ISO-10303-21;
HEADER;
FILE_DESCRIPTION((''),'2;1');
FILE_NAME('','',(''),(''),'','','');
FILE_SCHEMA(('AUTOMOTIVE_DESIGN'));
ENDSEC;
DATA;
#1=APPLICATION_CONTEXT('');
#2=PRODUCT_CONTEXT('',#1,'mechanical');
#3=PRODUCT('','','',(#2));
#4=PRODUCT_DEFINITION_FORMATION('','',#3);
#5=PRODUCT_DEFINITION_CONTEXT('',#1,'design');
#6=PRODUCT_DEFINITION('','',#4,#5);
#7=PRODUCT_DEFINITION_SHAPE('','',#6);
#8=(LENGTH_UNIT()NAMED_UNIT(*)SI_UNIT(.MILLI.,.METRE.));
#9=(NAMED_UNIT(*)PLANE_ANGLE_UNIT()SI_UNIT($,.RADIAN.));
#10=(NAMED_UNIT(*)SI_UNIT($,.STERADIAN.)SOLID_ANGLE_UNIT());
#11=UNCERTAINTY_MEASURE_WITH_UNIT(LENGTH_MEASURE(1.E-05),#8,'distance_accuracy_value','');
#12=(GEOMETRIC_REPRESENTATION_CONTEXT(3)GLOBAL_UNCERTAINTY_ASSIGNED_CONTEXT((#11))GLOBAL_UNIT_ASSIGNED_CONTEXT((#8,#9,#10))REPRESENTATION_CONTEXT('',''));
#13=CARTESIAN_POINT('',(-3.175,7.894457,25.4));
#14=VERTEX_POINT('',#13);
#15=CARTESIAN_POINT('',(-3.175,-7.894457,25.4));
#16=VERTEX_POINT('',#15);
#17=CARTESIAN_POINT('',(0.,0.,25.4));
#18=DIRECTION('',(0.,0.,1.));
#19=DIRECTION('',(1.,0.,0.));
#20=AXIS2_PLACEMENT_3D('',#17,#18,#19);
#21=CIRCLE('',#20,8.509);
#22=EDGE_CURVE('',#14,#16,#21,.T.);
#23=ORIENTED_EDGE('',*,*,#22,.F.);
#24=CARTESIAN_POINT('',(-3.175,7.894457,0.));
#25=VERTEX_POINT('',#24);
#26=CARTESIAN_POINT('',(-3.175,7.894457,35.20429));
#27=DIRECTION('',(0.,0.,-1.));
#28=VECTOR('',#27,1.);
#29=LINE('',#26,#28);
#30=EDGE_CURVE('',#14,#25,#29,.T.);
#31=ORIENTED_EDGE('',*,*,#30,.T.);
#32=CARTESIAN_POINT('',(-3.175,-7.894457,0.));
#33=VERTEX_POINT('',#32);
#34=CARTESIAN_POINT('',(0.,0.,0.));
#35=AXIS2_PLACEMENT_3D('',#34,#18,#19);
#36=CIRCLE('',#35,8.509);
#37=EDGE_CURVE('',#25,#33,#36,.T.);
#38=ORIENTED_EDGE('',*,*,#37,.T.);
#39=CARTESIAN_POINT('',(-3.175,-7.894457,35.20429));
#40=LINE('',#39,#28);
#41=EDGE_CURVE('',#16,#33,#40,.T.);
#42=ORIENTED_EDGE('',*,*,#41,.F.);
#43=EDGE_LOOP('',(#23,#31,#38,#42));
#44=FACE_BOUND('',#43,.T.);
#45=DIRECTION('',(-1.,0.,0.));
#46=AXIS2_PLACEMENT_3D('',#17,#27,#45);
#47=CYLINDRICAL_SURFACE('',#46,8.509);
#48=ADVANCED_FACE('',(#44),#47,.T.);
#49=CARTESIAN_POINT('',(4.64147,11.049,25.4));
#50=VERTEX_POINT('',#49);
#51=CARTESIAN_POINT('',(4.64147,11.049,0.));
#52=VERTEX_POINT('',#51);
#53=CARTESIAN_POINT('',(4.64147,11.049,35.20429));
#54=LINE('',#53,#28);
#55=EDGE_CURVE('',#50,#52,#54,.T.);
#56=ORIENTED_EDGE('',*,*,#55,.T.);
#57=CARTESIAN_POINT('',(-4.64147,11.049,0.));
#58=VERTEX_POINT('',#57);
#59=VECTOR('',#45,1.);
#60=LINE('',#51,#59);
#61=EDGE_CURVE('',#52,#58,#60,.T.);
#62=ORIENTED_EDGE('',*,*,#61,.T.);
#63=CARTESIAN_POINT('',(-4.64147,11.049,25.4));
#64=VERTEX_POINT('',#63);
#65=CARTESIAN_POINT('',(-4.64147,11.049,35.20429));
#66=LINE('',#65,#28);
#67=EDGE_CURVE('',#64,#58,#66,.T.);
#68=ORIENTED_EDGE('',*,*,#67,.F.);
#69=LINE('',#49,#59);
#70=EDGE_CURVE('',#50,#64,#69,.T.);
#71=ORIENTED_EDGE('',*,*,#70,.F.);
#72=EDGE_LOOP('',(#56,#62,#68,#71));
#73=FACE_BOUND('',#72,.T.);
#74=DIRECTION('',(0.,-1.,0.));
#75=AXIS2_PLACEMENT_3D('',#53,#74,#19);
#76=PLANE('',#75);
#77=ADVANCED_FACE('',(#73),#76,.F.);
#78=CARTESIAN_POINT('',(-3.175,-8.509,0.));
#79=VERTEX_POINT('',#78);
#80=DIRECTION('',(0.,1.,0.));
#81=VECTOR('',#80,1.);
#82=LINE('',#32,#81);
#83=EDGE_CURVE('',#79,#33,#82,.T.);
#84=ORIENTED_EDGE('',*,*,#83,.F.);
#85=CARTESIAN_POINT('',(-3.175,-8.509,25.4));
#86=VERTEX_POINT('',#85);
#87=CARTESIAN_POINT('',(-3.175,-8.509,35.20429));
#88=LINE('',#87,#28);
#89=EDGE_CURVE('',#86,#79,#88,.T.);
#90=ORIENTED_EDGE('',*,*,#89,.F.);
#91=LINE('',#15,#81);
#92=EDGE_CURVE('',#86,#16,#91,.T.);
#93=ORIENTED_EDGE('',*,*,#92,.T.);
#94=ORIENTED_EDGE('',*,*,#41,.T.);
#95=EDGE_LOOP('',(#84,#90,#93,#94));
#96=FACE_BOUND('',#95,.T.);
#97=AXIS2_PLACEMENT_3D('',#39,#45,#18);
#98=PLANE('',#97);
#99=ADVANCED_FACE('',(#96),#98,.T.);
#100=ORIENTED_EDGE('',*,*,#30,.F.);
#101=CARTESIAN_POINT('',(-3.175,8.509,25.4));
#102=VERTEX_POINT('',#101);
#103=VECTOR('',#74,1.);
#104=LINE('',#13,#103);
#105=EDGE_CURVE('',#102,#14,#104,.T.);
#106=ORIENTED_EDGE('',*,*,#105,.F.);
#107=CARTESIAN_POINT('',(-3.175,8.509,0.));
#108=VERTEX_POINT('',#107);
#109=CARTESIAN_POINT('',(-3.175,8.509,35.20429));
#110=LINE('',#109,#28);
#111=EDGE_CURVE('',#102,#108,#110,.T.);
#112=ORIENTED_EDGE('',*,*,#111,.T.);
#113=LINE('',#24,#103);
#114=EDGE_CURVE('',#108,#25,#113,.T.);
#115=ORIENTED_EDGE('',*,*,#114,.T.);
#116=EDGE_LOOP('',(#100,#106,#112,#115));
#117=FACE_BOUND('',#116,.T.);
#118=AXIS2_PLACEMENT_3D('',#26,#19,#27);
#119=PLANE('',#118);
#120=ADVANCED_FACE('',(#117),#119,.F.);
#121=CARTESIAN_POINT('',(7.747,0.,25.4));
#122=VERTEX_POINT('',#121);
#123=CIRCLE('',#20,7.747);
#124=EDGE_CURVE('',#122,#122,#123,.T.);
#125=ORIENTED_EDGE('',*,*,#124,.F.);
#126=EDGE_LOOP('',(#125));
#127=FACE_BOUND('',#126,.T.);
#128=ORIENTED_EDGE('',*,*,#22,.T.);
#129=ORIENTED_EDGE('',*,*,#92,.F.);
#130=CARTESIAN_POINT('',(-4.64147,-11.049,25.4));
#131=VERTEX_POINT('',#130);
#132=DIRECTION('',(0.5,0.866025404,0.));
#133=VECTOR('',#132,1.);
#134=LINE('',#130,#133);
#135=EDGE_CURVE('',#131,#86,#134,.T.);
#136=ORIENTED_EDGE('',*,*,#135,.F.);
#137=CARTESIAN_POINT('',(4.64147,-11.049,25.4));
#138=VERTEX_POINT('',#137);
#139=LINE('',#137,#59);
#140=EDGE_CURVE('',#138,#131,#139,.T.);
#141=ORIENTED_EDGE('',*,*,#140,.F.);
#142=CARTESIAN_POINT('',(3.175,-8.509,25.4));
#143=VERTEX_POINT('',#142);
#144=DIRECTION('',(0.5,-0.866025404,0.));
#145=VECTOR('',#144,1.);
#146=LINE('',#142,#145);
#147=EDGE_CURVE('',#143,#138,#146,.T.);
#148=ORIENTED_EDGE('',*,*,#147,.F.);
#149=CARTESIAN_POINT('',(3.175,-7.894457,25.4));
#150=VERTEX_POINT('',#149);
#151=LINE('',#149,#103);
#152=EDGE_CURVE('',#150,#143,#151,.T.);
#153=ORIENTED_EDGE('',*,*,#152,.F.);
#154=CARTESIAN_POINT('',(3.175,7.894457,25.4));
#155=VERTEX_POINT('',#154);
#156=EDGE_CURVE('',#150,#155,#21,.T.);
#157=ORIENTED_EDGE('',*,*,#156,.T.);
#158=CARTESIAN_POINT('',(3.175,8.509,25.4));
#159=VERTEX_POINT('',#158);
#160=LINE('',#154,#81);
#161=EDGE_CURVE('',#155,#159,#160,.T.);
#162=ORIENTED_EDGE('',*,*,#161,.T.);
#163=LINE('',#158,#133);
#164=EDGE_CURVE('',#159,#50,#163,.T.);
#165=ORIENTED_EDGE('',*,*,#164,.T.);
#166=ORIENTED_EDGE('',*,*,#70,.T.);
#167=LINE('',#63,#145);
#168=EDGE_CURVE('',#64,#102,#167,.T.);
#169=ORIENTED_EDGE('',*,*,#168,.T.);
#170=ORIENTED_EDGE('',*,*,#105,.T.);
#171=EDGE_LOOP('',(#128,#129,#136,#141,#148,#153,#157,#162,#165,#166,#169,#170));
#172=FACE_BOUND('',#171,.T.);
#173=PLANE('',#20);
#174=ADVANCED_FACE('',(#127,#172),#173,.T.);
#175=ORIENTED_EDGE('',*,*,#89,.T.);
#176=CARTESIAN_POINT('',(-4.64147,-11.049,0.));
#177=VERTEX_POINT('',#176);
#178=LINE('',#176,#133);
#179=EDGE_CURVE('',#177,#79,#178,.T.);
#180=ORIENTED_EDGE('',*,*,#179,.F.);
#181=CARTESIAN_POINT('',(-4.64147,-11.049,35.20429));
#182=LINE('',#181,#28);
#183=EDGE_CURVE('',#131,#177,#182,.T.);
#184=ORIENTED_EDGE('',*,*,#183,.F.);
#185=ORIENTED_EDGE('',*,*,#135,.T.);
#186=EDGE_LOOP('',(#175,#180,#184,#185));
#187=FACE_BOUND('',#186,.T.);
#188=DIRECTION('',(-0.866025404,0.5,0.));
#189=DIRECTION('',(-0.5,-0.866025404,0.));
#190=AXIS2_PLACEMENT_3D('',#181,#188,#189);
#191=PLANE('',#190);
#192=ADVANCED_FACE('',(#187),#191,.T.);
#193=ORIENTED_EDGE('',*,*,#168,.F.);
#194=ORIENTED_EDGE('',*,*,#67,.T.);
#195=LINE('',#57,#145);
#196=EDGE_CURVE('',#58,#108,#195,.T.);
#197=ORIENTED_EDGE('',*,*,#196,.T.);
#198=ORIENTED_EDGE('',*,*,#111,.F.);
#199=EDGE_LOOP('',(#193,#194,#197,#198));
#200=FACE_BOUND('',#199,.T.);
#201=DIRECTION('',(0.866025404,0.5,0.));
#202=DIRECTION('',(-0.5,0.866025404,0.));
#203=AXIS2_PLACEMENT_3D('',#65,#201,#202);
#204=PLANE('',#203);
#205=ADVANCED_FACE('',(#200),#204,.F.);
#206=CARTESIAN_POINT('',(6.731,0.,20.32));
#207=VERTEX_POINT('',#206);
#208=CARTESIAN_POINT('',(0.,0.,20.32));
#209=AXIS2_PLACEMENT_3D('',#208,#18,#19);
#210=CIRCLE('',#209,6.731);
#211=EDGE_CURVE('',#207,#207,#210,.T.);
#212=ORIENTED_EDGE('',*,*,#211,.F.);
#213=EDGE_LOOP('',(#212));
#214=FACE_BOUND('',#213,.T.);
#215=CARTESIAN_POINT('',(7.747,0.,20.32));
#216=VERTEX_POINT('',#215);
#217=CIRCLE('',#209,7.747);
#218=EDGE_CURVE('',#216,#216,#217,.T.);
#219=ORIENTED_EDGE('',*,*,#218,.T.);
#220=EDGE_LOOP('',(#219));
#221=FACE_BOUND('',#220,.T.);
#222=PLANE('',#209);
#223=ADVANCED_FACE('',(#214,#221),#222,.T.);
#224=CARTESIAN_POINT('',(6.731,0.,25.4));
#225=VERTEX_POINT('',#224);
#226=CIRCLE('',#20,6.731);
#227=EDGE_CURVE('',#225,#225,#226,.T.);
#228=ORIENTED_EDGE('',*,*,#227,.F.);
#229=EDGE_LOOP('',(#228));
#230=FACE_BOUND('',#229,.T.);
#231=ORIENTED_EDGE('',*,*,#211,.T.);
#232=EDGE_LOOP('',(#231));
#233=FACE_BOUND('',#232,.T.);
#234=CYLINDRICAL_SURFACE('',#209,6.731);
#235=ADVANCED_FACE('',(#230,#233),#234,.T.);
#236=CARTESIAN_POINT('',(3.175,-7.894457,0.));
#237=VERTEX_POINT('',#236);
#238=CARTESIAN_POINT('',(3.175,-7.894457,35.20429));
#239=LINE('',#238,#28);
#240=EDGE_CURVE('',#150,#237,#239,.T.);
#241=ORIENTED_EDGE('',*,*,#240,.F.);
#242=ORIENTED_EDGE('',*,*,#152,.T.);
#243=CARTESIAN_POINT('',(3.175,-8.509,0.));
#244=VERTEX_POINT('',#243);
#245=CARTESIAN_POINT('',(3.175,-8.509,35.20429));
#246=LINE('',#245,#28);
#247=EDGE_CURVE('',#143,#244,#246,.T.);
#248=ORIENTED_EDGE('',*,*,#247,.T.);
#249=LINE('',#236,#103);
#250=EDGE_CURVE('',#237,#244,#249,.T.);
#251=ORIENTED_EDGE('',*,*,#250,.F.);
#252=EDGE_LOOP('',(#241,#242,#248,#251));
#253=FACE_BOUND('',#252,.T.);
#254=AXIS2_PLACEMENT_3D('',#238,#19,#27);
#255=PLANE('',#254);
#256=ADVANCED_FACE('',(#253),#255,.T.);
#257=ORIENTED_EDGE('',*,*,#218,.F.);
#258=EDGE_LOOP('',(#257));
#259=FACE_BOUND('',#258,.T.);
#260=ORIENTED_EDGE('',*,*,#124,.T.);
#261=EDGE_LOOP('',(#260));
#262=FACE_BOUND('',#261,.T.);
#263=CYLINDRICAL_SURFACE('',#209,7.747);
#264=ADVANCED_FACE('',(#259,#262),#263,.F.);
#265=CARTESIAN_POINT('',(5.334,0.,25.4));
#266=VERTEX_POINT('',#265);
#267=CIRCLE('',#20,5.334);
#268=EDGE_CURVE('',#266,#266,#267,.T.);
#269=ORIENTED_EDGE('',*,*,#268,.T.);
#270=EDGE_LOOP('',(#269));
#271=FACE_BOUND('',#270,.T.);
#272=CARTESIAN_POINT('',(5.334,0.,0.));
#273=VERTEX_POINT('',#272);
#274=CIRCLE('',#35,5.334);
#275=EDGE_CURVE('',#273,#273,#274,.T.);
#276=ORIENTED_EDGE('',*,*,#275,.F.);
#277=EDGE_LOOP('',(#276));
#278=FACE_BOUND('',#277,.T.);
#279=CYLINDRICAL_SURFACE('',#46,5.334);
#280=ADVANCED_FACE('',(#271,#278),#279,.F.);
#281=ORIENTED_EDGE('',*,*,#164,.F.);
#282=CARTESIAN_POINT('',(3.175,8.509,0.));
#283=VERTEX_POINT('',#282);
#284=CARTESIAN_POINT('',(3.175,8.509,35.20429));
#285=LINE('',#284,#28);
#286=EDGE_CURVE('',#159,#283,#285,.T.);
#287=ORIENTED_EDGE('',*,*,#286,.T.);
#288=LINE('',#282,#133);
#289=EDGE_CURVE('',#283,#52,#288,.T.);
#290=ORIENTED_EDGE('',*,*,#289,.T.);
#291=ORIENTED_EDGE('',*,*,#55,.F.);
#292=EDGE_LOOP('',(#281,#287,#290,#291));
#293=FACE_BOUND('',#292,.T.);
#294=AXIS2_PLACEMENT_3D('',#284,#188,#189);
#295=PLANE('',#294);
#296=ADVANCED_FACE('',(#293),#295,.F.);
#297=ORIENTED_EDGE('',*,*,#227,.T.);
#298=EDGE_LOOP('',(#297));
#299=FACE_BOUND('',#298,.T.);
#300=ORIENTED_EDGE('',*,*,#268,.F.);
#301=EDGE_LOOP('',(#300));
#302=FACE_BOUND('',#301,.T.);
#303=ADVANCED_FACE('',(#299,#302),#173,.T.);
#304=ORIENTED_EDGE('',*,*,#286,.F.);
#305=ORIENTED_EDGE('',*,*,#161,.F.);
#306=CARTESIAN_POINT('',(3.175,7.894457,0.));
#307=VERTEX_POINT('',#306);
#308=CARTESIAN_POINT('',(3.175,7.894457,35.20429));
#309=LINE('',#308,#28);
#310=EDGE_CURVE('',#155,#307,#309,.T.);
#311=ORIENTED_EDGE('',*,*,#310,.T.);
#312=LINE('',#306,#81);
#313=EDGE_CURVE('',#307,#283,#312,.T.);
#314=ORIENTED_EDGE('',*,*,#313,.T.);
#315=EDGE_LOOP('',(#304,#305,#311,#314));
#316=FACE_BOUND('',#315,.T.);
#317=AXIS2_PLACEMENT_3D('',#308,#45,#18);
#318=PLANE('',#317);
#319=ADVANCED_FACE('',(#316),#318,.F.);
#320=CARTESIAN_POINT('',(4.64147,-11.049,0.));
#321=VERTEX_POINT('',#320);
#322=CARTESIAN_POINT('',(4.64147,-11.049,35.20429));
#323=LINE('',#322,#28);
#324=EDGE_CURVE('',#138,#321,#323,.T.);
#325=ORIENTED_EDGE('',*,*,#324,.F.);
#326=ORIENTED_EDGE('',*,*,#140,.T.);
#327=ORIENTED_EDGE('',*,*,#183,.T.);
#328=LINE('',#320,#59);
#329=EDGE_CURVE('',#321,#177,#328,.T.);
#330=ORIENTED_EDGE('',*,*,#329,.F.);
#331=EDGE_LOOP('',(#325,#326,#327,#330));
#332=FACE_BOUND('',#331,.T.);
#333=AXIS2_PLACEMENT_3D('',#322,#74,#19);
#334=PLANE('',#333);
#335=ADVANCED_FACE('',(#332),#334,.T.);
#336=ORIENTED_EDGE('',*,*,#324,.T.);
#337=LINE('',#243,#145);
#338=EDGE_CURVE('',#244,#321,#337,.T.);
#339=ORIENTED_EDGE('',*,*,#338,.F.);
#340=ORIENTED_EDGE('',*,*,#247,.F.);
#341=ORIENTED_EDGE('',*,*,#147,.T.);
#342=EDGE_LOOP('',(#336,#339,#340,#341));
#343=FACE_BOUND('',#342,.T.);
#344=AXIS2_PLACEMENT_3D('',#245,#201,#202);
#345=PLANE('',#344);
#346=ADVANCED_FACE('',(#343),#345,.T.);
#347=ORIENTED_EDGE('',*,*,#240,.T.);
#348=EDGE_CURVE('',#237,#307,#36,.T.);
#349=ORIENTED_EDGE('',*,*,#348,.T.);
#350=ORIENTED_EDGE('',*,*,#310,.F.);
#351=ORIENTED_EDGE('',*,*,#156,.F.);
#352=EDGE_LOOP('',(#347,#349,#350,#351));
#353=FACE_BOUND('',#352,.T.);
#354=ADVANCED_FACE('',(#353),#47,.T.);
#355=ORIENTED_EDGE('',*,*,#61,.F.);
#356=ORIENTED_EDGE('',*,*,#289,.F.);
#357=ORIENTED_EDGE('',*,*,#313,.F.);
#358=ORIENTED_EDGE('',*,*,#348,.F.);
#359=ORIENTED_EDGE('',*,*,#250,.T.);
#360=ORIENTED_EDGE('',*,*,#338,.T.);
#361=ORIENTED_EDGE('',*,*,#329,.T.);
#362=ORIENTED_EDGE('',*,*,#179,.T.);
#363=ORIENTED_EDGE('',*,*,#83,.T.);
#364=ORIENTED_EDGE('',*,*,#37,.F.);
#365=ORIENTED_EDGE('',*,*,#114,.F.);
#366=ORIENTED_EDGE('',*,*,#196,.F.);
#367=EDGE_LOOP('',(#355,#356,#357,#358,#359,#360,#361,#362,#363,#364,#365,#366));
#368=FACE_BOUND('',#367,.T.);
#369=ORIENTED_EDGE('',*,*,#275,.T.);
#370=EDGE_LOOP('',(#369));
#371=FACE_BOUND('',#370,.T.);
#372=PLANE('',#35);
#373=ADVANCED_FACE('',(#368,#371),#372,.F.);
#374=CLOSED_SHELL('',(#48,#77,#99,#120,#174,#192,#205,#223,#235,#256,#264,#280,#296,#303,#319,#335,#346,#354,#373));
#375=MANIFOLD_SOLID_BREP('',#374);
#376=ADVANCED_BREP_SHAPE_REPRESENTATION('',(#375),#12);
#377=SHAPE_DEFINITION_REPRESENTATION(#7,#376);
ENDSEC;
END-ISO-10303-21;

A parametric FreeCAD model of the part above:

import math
import FreeCAD as App
import Part
import Sketcher
Q = App.Units.Quantity

doc = App.newDocument("Part")
body = doc.addObject("PartDesign::Body", "Body")

# Sketch on XY plane
sketch1 = doc.addObject("Sketcher::SketchObject", "Sketch")
body.addObject(sketch1)
sketch1.AttachmentSupport = (doc.XY_Plane, [""])
sketch1.MapMode = "FlatFace"
sketch1.addGeometry([
    Part.Circle(App.Vector(0, 0, 0), App.Vector(0, 0, 1), 8.509),
    Part.Circle(App.Vector(0, 0, 0), App.Vector(0, 0, 1), 5.334),
], False)
sketch1.addConstraint([
    Sketcher.Constraint("Coincident", 0, 3, -1, 1),
    Sketcher.Constraint("Coincident", 1, 3, -1, 1),
    Sketcher.Constraint("Diameter", 0, Q("0.67 in")),
    Sketcher.Constraint("Diameter", 1, Q("0.42 in")),
])
pad1 = doc.addObject("PartDesign::Pad", "Pad")
body.addObject(pad1)
pad1.Profile = sketch1
pad1.Length = Q("1 in")

# Sketch on XY plane
sketch2 = doc.addObject("Sketcher::SketchObject", "Sketch001")
body.addObject(sketch2)
sketch2.AttachmentSupport = (doc.XY_Plane, [""])
sketch2.MapMode = "FlatFace"
sketch2.AttachmentOffset = App.Placement(App.Vector(0, 0, 1 * 25.4), App.Rotation())
sketch2.addGeometry([
    Part.Circle(App.Vector(0, 0, 0), App.Vector(0, 0, 1), 7.747),
    Part.Circle(App.Vector(0, 0, 0), App.Vector(0, 0, 1), 6.731),
], False)
sketch2.addConstraint([
    Sketcher.Constraint("Coincident", 0, 3, -1, 1),
    Sketcher.Constraint("Coincident", 1, 3, -1, 1),
    Sketcher.Constraint("Diameter", 0, Q("0.61 in")),
    Sketcher.Constraint("Diameter", 1, Q("0.53 in")),
])
pocket1 = doc.addObject("PartDesign::Pocket", "Pocket")
body.addObject(pocket1)
pocket1.Profile = sketch2
pocket1.Length = Q("0.2 in")

# Sketch on XY plane
sketch3 = doc.addObject("Sketcher::SketchObject", "Sketch002")
body.addObject(sketch3)
sketch3.AttachmentSupport = (doc.XY_Plane, [""])
sketch3.MapMode = "FlatFace"
sketch3.addGeometry([
    Part.LineSegment(App.Vector(-3.175, 8.509, 0), App.Vector(-3.175, 7.894457, 0)),  # 0
    Part.ArcOfCircle(Part.Circle(App.Vector(0, 0, 0), App.Vector(0, 0, 1), 8.509), math.radians(68.09095), math.radians(111.90905)),  # 1
    Part.LineSegment(App.Vector(3.175, 7.894457, 0), App.Vector(3.175, 8.509, 0)),  # 2
    Part.LineSegment(App.Vector(3.175, 8.509, 0), App.Vector(4.64147, 11.049, 0)),  # 3
    Part.LineSegment(App.Vector(4.64147, 11.049, 0), App.Vector(-4.64147, 11.049, 0)),  # 4
    Part.LineSegment(App.Vector(-4.64147, 11.049, 0), App.Vector(-3.175, 8.509, 0)),  # 5
], False)
sketch3.addConstraint([
    Sketcher.Constraint("Coincident", 0, 2, 1, 2),
    Sketcher.Constraint("Coincident", 1, 1, 2, 1),
    Sketcher.Constraint("Coincident", 2, 2, 3, 1),
    Sketcher.Constraint("Coincident", 3, 2, 4, 1),
    Sketcher.Constraint("Coincident", 4, 2, 5, 1),
    Sketcher.Constraint("Coincident", 5, 2, 0, 1),
    Sketcher.Constraint("Vertical", 0),
    Sketcher.Constraint("Vertical", 2),
    Sketcher.Constraint("Horizontal", 4),
    Sketcher.Constraint("Coincident", 1, 3, -1, 1),
    Sketcher.Constraint("Symmetric", 2, 2, 5, 2, -2),
    Sketcher.Constraint("Equal", 3, 5),
    Sketcher.Constraint("Angle", 3, Q("60 deg")),
    Sketcher.Constraint("Radius", 1, Q("0.335 in")),
    Sketcher.Constraint("DistanceY", 2, 2, 3, 2, Q("0.1 in")),
    Sketcher.Constraint("DistanceX", 0, 2, 1, 1, Q("0.25 in")),
    Sketcher.Constraint("DistanceY", -1, 1, 2, 2, Q("0.335 in")),
])
pad2 = doc.addObject("PartDesign::Pad", "Pad001")
body.addObject(pad2)
pad2.Profile = sketch3
pad2.Length = Q("1 in")
doc.recompute()

mirrored = doc.addObject("PartDesign::Mirrored", "Mirrored")
body.addObject(mirrored)
mirrored.Originals = [pad2]
mirrored.MirrorPlane = (doc.XZ_Plane, [""])
body.Tip = mirrored

doc.recompute()
